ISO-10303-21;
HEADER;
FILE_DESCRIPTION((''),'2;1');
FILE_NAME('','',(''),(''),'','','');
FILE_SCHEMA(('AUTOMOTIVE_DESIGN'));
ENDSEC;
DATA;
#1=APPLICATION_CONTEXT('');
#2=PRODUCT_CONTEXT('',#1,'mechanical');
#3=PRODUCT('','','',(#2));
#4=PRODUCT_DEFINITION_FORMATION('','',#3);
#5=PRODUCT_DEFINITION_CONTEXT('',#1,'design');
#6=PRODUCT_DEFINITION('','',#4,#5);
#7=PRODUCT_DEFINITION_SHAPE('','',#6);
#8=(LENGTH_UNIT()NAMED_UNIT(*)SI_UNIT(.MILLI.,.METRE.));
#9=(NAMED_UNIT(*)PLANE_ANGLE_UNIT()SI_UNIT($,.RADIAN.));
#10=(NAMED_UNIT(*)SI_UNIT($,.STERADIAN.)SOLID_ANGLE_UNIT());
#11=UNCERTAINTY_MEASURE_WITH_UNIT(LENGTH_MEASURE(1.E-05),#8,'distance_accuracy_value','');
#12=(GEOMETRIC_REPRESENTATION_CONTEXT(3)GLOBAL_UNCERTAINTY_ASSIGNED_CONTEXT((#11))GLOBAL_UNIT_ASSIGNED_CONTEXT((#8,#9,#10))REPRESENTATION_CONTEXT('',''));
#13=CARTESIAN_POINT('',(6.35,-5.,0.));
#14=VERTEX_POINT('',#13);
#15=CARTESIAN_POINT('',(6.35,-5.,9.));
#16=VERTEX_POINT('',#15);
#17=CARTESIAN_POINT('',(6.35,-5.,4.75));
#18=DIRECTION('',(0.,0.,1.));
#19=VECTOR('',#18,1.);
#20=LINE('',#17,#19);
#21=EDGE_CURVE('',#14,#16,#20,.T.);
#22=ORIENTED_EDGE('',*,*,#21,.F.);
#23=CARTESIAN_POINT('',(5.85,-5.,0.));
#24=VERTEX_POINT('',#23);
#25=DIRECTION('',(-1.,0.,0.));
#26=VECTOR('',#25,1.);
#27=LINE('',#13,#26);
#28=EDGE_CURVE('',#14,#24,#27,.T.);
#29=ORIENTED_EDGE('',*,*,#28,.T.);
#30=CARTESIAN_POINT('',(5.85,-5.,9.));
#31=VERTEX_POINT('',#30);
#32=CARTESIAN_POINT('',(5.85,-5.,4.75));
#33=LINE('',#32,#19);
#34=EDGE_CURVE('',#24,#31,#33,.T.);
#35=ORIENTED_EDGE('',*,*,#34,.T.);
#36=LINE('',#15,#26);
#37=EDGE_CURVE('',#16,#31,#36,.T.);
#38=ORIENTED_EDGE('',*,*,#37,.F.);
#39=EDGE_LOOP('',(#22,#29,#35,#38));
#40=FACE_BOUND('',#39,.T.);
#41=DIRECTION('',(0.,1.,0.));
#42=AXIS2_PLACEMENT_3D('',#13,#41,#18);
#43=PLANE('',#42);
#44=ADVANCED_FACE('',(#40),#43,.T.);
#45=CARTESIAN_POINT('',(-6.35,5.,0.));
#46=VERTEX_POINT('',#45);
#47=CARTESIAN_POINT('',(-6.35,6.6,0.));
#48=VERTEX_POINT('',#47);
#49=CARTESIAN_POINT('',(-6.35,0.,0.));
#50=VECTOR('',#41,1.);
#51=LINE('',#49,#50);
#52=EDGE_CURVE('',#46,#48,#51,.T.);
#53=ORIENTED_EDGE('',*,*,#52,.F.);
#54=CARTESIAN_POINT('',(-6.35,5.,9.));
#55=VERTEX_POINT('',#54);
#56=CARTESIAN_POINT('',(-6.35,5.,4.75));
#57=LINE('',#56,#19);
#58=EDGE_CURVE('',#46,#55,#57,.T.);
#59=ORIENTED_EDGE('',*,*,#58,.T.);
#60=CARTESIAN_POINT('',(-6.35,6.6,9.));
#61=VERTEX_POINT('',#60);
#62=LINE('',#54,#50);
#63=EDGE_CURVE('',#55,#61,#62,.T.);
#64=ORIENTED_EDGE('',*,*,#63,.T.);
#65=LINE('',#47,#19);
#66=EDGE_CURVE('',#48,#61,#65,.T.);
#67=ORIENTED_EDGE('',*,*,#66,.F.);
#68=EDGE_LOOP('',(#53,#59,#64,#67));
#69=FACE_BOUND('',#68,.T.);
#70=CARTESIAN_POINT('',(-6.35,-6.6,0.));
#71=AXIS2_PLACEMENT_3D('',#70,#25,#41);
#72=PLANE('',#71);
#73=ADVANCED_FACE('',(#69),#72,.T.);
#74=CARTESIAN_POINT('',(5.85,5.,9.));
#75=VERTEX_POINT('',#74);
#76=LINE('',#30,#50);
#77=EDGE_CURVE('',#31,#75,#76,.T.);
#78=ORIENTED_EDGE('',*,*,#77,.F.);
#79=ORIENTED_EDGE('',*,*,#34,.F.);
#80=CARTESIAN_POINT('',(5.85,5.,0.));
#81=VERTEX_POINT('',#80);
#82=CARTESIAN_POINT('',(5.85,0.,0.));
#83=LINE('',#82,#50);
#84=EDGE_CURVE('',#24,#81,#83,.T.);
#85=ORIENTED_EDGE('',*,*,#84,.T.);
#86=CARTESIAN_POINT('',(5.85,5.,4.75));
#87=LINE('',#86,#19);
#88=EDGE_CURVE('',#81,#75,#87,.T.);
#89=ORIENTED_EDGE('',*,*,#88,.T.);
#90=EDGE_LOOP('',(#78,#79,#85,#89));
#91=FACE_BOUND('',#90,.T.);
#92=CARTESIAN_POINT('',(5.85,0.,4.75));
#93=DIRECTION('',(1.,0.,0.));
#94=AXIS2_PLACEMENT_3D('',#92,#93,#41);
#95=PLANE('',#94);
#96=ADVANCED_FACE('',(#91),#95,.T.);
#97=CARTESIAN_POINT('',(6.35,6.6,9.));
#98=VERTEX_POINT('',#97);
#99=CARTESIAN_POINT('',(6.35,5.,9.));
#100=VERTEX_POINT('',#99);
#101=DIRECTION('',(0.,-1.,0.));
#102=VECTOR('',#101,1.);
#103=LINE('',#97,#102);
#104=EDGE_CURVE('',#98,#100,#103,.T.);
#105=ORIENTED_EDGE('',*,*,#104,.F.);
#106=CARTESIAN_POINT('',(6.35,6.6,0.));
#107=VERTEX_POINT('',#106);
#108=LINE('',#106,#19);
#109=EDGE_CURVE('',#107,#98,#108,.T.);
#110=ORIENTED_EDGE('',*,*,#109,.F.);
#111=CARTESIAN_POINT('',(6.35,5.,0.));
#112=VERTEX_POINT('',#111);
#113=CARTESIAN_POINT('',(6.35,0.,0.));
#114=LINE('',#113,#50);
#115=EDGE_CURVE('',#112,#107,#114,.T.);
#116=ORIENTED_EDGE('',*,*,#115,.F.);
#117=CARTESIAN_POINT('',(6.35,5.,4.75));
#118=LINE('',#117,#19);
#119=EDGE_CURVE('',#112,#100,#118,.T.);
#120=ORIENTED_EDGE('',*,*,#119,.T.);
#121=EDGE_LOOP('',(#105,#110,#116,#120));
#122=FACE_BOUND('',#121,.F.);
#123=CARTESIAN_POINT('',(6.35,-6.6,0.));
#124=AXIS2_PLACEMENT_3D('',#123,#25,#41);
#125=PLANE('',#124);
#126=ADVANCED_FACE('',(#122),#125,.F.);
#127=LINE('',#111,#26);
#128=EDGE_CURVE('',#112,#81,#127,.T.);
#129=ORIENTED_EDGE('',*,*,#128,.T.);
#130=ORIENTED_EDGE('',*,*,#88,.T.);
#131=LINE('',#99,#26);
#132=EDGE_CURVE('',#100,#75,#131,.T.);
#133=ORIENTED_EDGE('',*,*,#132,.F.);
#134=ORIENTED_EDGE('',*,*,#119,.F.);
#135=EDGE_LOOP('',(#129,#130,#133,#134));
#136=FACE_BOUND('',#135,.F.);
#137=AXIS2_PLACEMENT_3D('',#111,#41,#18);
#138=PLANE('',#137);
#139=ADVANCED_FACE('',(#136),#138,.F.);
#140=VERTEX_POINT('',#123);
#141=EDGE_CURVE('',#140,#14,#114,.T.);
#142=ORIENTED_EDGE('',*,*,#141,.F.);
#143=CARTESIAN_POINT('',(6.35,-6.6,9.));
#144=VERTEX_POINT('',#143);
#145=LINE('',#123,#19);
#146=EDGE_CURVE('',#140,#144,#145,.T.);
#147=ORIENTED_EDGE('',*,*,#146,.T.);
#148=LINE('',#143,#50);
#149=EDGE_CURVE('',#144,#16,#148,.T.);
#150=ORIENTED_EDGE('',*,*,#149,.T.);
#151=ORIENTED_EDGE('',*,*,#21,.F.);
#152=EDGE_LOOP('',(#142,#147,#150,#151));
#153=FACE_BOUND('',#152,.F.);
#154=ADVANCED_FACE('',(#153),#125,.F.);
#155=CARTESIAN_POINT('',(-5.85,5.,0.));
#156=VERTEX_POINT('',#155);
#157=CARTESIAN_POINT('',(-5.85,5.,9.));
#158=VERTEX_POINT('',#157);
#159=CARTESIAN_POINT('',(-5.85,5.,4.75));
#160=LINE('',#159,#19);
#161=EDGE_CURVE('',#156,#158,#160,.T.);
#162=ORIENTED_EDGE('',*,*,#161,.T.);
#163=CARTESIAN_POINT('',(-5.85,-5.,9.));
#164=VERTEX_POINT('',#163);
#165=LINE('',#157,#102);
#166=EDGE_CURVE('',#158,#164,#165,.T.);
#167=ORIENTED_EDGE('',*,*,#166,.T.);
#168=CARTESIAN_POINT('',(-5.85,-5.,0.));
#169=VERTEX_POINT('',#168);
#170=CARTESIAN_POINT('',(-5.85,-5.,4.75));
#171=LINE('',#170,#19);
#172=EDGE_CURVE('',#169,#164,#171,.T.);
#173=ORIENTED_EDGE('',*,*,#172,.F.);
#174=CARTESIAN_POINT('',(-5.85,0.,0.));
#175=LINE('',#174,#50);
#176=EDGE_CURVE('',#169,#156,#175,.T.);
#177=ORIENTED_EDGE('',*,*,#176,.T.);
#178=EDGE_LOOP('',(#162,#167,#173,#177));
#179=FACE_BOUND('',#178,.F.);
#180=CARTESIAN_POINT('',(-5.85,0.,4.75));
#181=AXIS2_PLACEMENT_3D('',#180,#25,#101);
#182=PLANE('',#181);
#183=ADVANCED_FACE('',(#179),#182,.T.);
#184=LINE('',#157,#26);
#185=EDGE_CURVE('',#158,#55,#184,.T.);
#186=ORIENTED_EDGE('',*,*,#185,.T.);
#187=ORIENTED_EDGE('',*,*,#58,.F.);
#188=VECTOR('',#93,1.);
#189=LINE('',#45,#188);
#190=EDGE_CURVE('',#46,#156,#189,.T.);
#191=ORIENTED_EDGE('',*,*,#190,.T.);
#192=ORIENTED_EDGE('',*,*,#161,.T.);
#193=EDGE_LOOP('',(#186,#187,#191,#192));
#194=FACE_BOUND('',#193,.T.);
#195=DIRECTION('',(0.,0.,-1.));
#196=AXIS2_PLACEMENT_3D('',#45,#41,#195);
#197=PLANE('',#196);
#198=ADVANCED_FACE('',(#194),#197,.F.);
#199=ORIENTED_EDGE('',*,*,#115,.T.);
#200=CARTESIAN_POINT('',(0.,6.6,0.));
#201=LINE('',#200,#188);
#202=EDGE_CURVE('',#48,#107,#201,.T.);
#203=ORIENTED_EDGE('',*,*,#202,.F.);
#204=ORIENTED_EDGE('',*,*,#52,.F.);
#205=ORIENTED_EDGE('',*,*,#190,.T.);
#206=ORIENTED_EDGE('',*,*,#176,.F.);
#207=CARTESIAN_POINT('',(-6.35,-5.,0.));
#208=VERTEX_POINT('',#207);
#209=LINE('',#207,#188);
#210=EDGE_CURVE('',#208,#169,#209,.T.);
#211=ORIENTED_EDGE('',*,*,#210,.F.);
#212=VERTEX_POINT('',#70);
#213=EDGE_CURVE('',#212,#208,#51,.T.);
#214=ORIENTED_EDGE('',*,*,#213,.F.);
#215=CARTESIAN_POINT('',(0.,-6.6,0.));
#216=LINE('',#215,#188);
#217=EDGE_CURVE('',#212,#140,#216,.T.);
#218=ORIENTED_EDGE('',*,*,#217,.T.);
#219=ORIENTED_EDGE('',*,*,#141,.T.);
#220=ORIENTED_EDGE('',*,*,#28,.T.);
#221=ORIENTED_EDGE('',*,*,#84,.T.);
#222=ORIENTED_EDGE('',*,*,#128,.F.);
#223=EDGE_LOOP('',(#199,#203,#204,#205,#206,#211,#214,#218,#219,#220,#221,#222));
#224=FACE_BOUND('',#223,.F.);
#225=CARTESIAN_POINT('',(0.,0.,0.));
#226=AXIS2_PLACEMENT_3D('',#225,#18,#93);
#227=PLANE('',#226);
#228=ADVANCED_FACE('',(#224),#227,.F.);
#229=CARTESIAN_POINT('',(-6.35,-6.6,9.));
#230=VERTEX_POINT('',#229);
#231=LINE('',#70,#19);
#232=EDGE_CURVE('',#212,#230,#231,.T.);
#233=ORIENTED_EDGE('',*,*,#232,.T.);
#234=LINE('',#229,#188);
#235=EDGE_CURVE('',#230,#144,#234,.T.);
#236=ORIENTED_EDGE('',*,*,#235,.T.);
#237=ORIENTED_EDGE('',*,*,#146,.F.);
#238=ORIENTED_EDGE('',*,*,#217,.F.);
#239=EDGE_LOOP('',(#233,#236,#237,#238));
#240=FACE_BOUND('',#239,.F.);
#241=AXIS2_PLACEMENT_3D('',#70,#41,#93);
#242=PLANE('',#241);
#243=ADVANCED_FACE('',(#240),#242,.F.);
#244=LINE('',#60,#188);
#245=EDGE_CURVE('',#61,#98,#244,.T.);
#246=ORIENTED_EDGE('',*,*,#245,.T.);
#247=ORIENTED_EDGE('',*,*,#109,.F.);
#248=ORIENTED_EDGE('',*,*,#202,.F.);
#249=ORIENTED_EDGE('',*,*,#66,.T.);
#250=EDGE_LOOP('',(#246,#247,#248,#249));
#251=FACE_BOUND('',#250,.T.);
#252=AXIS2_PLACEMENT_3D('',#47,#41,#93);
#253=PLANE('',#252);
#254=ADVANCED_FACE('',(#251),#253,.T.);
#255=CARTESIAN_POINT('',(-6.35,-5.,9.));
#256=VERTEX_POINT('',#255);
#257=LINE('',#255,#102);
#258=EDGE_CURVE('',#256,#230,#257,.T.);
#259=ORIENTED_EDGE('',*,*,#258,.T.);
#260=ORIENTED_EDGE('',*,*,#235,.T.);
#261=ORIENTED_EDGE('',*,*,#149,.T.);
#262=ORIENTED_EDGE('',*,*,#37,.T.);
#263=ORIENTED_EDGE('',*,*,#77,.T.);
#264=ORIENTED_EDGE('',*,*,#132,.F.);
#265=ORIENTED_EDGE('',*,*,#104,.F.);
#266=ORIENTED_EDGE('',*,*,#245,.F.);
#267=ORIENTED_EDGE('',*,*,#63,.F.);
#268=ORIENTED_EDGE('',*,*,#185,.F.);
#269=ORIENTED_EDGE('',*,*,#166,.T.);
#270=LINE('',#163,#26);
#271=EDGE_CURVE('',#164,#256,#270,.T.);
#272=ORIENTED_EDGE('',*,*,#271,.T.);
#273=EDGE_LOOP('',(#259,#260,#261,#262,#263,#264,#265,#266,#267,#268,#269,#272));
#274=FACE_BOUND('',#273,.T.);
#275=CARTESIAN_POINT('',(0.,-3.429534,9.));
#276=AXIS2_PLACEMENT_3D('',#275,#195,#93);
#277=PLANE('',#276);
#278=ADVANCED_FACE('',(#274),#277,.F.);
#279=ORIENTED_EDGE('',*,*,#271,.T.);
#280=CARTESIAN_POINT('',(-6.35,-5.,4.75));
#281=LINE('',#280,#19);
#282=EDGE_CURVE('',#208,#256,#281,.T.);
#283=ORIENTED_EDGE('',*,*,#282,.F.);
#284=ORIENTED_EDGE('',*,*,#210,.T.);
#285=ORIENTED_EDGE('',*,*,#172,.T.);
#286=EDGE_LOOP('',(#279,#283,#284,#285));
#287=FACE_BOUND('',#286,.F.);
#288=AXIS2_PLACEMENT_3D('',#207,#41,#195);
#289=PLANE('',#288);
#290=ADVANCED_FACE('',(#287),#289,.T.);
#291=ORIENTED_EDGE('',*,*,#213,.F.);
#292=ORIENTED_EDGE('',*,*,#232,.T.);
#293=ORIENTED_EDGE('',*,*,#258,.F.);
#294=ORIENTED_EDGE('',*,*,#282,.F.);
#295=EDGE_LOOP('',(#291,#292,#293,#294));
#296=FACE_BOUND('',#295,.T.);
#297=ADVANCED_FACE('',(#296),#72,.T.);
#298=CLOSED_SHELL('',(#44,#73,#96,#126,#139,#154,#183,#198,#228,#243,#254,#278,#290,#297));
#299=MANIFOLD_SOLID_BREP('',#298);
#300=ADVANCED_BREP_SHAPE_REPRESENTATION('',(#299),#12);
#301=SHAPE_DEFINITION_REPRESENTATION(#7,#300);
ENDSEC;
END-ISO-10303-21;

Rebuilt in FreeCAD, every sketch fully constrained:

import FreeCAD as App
import Part
import Sketcher

V = App.Vector
Q = App.Units.Quantity

doc = App.newDocument("Part")
body = doc.addObject("PartDesign::Body", "Body")

sketch1 = doc.addObject("Sketcher::SketchObject", "Sketch")
body.addObject(sketch1)
sketch1.AttachmentSupport = (doc.XY_Plane, [""])
sketch1.MapMode = "FlatFace"
sketch1.addGeometry(Part.LineSegment(V(-6.35, 6.6, 0), V(-6.35, -6.6, 0)), False)
sketch1.addGeometry(Part.LineSegment(V(-6.35, -6.6, 0), V(6.35, -6.6, 0)), False)
sketch1.addGeometry(Part.LineSegment(V(6.35, -6.6, 0), V(6.35, 6.6, 0)), False)
sketch1.addGeometry(Part.LineSegment(V(6.35, 6.6, 0), V(-6.35, 6.6, 0)), False)
sketch1.addConstraint(Sketcher.Constraint("Coincident", 0, 2, 1, 1))
sketch1.addConstraint(Sketcher.Constraint("Coincident", 1, 2, 2, 1))
sketch1.addConstraint(Sketcher.Constraint("Coincident", 2, 2, 3, 1))
sketch1.addConstraint(Sketcher.Constraint("Coincident", 3, 2, 0, 1))
sketch1.addConstraint(Sketcher.Constraint("Vertical", 0))
sketch1.addConstraint(Sketcher.Constraint("Horizontal", 1))
sketch1.addConstraint(Sketcher.Constraint("Vertical", 2))
sketch1.addConstraint(Sketcher.Constraint("Horizontal", 3))
sketch1.addConstraint(Sketcher.Constraint("Symmetric", 0, 2, 2, 2, -1, 1))
sketch1.addConstraint(Sketcher.Constraint("DistanceX", 1, 1, 1, 2, Q("12.7 mm")))
sketch1.addConstraint(Sketcher.Constraint("DistanceY", 0, 2, 0, 1, Q("13.2 mm")))
pad1 = doc.addObject("PartDesign::Pad", "Pad")
body.addObject(pad1)
pad1.Profile = sketch1
pad1.Length = 9.5

sketch2 = doc.addObject("Sketcher::SketchObject", "Sketch001")
body.addObject(sketch2)
sketch2.AttachmentSupport = (doc.YZ_Plane, [""])
sketch2.MapMode = "FlatFace"
sketch2.AttachmentOffset = App.Placement(V(0, 0, 6.35), App.Rotation())
sketch2.addGeometry(Part.LineSegment(V(-5, 9.5, 0), V(-5, 0, 0)), False)
sketch2.addGeometry(Part.LineSegment(V(-5, 0, 0), V(5, 0, 0)), False)
sketch2.addGeometry(Part.LineSegment(V(5, 0, 0), V(5, 9.5, 0)), False)
sketch2.addGeometry(Part.LineSegment(V(5, 9.5, 0), V(-5, 9.5, 0)), False)
sketch2.addConstraint(Sketcher.Constraint("Coincident", 0, 2, 1, 1))
sketch2.addConstraint(Sketcher.Constraint("Coincident", 1, 2, 2, 1))
sketch2.addConstraint(Sketcher.Constraint("Coincident", 2, 2, 3, 1))
sketch2.addConstraint(Sketcher.Constraint("Coincident", 3, 2, 0, 1))
sketch2.addConstraint(Sketcher.Constraint("Vertical", 0))
sketch2.addConstraint(Sketcher.Constraint("Horizontal", 1))
sketch2.addConstraint(Sketcher.Constraint("Vertical", 2))
sketch2.addConstraint(Sketcher.Constraint("Horizontal", 3))
sketch2.addConstraint(Sketcher.Constraint("Symmetric", 0, 2, 1, 2, -1, 1))
sketch2.addConstraint(Sketcher.Constraint("DistanceX", 1, 1, 1, 2, Q("10 mm")))
sketch2.addConstraint(Sketcher.Constraint("DistanceY", 0, 2, 0, 1, Q("9.5 mm")))
pocket1 = doc.addObject("PartDesign::Pocket", "Pocket")
body.addObject(pocket1)
pocket1.Profile = sketch2
pocket1.Length = 0.5
doc.recompute()

mirrored = doc.addObject("PartDesign::Mirrored", "Mirrored")
body.addObject(mirrored)
mirrored.Originals = [pocket1]
mirrored.MirrorPlane = (doc.YZ_Plane, [""])
body.Tip = mirrored

sketch3 = doc.addObject("Sketcher::SketchObject", "Sketch002")
body.addObject(sketch3)
sketch3.AttachmentSupport = (doc.XY_Plane, [""])
sketch3.MapMode = "FlatFace"
sketch3.AttachmentOffset = App.Placement(V(0, 0, 9.5), App.Rotation())
sketch3.addGeometry(Part.LineSegment(V(6.35, 6.6, 0), V(-6.35, 6.6, 0)), False)
sketch3.addGeometry(Part.LineSegment(V(-6.35, 6.6, 0), V(-6.35, 5, 0)), False)
sketch3.addGeometry(Part.LineSegment(V(-6.35, 5, 0), V(-5.85, 5, 0)), False)
sketch3.addGeometry(Part.LineSegment(V(-5.85, 5, 0), V(-5.85, 0, 0)), False)
sketch3.addGeometry(Part.LineSegment(V(-5.85, 0, 0), V(5.85, 0, 0)), False)
sketch3.addGeometry(Part.LineSegment(V(5.85, 0, 0), V(5.85, 5, 0)), False)
sketch3.addGeometry(Part.LineSegment(V(5.85, 5, 0), V(6.35, 5, 0)), False)
sketch3.addGeometry(Part.LineSegment(V(6.35, 5, 0), V(6.35, 6.6, 0)), False)
sketch3.addConstraint(Sketcher.Constraint("Coincident", 0, 2, 1, 1))
sketch3.addConstraint(Sketcher.Constraint("Coincident", 1, 2, 2, 1))
sketch3.addConstraint(Sketcher.Constraint("Coincident", 2, 2, 3, 1))
sketch3.addConstraint(Sketcher.Constraint("Coincident", 3, 2, 4, 1))
sketch3.addConstraint(Sketcher.Constraint("Coincident", 4, 2, 5, 1))
sketch3.addConstraint(Sketcher.Constraint("Coincident", 5, 2, 6, 1))
sketch3.addConstraint(Sketcher.Constraint("Coincident", 6, 2, 7, 1))
sketch3.addConstraint(Sketcher.Constraint("Coincident", 7, 2, 0, 1))
sketch3.addConstraint(Sketcher.Constraint("Horizontal", 0))
sketch3.addConstraint(Sketcher.Constraint("Vertical", 1))
sketch3.addConstraint(Sketcher.Constraint("Horizontal", 2))
sketch3.addConstraint(Sketcher.Constraint("Vertical", 3))
sketch3.addConstraint(Sketcher.Constraint("Horizontal", 4))
sketch3.addConstraint(Sketcher.Constraint("Vertical", 5))
sketch3.addConstraint(Sketcher.Constraint("Horizontal", 6))
sketch3.addConstraint(Sketcher.Constraint("Vertical", 7))
sketch3.addConstraint(Sketcher.Constraint("Symmetric", 3, 2, 4, 2, -1, 1))
sketch3.addConstraint(Sketcher.Constraint("Symmetric", 1, 2, 6, 2, -2))
sketch3.addConstraint(Sketcher.Constraint("DistanceY", 3, 2, 3, 1, Q("5 mm")))
sketch3.addConstraint(Sketcher.Constraint("DistanceX", 0, 2, 0, 1, Q("12.7 mm")))
sketch3.addConstraint(Sketcher.Constraint("DistanceX", 2, 1, 2, 2, Q("0.5 mm")))
sketch3.addConstraint(Sketcher.Constraint("DistanceY", 1, 2, 1, 1, Q("1.6 mm")))
pocket2 = doc.addObject("PartDesign::Pocket", "Pocket001")
body.addObject(pocket2)
pocket2.Profile = sketch3
pocket2.Length = 0.5
doc.recompute()

mirrored2 = doc.addObject("PartDesign::Mirrored", "Mirrored001")
body.addObject(mirrored2)
mirrored2.Originals = [pocket2]
mirrored2.MirrorPlane = (doc.XZ_Plane, [""])
body.Tip = mirrored2

doc.recompute()
